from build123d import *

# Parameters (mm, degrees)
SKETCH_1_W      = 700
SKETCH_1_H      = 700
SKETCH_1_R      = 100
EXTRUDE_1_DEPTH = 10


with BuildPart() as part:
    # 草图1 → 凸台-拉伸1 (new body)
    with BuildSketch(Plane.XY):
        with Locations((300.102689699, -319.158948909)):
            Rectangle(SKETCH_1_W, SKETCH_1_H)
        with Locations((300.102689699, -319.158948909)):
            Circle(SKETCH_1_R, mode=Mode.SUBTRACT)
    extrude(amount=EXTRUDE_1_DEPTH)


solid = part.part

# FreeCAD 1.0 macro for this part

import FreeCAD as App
import Part
import Sketcher
Q = App.Units.Quantity


def add_polygon(sketch, points):
    """Adds a closed chain of lines whose ends are joined by coincident constraints."""
    first, n = sketch.GeometryCount, len(points)
    for a, b in zip(points, points[1:] + points[:1]):
        sketch.addGeometry(Part.LineSegment(App.Vector(*a, 0), App.Vector(*b, 0)), False)
    for i in range(n):
        sketch.addConstraint(Sketcher.Constraint("Coincident", first + i, 2, first + (i + 1) % n, 1))

doc = App.newDocument("Part")
body = doc.addObject("PartDesign::Body", "Body")

# Sketch on XY plane
sketch1 = body.newObject("Sketcher::SketchObject", "Sketch")
sketch1.AttachmentSupport = (doc.getObject("XY_Plane"), [""])
sketch1.MapMode = "FlatFace"
add_polygon(sketch1, [(-50, 31), (-50, -669), (650, -669), (650, 31)])  # lines 0-3
sketch1.addGeometry(Part.Circle(App.Vector(300, -319, 0), App.Vector(0, 0, 1), 100), False)  # 4
sketch1.addConstraint(Sketcher.Constraint("Vertical", 0))
sketch1.addConstraint(Sketcher.Constraint("Horizontal", 1))
sketch1.addConstraint(Sketcher.Constraint("Vertical", 2))
sketch1.addConstraint(Sketcher.Constraint("Horizontal", 3))
sketch1.addConstraint(Sketcher.Constraint("Equal", 3, 0))
sketch1.addConstraint(Sketcher.Constraint("Diameter", 4, Q("200 mm")))
sketch1.addConstraint(Sketcher.Constraint("DistanceX", 1, 1, 1, 2, Q("700 mm")))
sketch1.addConstraint(Sketcher.Constraint("DistanceX", 0, 2, 4, 3, Q("350 mm")))
sketch1.addConstraint(Sketcher.Constraint("DistanceY", 0, 2, 4, 3, Q("350 mm")))
sketch1.addConstraint(Sketcher.Constraint("DistanceX", -1, 1, 4, 3, Q("300.10269 mm")))
sketch1.addConstraint(Sketcher.Constraint("DistanceY", 4, 3, -1, 1, Q("319.158949 mm")))
pad1 = body.newObject("PartDesign::Pad", "Pad")
pad1.Profile = sketch1
pad1.Length = 10

doc.recompute()
